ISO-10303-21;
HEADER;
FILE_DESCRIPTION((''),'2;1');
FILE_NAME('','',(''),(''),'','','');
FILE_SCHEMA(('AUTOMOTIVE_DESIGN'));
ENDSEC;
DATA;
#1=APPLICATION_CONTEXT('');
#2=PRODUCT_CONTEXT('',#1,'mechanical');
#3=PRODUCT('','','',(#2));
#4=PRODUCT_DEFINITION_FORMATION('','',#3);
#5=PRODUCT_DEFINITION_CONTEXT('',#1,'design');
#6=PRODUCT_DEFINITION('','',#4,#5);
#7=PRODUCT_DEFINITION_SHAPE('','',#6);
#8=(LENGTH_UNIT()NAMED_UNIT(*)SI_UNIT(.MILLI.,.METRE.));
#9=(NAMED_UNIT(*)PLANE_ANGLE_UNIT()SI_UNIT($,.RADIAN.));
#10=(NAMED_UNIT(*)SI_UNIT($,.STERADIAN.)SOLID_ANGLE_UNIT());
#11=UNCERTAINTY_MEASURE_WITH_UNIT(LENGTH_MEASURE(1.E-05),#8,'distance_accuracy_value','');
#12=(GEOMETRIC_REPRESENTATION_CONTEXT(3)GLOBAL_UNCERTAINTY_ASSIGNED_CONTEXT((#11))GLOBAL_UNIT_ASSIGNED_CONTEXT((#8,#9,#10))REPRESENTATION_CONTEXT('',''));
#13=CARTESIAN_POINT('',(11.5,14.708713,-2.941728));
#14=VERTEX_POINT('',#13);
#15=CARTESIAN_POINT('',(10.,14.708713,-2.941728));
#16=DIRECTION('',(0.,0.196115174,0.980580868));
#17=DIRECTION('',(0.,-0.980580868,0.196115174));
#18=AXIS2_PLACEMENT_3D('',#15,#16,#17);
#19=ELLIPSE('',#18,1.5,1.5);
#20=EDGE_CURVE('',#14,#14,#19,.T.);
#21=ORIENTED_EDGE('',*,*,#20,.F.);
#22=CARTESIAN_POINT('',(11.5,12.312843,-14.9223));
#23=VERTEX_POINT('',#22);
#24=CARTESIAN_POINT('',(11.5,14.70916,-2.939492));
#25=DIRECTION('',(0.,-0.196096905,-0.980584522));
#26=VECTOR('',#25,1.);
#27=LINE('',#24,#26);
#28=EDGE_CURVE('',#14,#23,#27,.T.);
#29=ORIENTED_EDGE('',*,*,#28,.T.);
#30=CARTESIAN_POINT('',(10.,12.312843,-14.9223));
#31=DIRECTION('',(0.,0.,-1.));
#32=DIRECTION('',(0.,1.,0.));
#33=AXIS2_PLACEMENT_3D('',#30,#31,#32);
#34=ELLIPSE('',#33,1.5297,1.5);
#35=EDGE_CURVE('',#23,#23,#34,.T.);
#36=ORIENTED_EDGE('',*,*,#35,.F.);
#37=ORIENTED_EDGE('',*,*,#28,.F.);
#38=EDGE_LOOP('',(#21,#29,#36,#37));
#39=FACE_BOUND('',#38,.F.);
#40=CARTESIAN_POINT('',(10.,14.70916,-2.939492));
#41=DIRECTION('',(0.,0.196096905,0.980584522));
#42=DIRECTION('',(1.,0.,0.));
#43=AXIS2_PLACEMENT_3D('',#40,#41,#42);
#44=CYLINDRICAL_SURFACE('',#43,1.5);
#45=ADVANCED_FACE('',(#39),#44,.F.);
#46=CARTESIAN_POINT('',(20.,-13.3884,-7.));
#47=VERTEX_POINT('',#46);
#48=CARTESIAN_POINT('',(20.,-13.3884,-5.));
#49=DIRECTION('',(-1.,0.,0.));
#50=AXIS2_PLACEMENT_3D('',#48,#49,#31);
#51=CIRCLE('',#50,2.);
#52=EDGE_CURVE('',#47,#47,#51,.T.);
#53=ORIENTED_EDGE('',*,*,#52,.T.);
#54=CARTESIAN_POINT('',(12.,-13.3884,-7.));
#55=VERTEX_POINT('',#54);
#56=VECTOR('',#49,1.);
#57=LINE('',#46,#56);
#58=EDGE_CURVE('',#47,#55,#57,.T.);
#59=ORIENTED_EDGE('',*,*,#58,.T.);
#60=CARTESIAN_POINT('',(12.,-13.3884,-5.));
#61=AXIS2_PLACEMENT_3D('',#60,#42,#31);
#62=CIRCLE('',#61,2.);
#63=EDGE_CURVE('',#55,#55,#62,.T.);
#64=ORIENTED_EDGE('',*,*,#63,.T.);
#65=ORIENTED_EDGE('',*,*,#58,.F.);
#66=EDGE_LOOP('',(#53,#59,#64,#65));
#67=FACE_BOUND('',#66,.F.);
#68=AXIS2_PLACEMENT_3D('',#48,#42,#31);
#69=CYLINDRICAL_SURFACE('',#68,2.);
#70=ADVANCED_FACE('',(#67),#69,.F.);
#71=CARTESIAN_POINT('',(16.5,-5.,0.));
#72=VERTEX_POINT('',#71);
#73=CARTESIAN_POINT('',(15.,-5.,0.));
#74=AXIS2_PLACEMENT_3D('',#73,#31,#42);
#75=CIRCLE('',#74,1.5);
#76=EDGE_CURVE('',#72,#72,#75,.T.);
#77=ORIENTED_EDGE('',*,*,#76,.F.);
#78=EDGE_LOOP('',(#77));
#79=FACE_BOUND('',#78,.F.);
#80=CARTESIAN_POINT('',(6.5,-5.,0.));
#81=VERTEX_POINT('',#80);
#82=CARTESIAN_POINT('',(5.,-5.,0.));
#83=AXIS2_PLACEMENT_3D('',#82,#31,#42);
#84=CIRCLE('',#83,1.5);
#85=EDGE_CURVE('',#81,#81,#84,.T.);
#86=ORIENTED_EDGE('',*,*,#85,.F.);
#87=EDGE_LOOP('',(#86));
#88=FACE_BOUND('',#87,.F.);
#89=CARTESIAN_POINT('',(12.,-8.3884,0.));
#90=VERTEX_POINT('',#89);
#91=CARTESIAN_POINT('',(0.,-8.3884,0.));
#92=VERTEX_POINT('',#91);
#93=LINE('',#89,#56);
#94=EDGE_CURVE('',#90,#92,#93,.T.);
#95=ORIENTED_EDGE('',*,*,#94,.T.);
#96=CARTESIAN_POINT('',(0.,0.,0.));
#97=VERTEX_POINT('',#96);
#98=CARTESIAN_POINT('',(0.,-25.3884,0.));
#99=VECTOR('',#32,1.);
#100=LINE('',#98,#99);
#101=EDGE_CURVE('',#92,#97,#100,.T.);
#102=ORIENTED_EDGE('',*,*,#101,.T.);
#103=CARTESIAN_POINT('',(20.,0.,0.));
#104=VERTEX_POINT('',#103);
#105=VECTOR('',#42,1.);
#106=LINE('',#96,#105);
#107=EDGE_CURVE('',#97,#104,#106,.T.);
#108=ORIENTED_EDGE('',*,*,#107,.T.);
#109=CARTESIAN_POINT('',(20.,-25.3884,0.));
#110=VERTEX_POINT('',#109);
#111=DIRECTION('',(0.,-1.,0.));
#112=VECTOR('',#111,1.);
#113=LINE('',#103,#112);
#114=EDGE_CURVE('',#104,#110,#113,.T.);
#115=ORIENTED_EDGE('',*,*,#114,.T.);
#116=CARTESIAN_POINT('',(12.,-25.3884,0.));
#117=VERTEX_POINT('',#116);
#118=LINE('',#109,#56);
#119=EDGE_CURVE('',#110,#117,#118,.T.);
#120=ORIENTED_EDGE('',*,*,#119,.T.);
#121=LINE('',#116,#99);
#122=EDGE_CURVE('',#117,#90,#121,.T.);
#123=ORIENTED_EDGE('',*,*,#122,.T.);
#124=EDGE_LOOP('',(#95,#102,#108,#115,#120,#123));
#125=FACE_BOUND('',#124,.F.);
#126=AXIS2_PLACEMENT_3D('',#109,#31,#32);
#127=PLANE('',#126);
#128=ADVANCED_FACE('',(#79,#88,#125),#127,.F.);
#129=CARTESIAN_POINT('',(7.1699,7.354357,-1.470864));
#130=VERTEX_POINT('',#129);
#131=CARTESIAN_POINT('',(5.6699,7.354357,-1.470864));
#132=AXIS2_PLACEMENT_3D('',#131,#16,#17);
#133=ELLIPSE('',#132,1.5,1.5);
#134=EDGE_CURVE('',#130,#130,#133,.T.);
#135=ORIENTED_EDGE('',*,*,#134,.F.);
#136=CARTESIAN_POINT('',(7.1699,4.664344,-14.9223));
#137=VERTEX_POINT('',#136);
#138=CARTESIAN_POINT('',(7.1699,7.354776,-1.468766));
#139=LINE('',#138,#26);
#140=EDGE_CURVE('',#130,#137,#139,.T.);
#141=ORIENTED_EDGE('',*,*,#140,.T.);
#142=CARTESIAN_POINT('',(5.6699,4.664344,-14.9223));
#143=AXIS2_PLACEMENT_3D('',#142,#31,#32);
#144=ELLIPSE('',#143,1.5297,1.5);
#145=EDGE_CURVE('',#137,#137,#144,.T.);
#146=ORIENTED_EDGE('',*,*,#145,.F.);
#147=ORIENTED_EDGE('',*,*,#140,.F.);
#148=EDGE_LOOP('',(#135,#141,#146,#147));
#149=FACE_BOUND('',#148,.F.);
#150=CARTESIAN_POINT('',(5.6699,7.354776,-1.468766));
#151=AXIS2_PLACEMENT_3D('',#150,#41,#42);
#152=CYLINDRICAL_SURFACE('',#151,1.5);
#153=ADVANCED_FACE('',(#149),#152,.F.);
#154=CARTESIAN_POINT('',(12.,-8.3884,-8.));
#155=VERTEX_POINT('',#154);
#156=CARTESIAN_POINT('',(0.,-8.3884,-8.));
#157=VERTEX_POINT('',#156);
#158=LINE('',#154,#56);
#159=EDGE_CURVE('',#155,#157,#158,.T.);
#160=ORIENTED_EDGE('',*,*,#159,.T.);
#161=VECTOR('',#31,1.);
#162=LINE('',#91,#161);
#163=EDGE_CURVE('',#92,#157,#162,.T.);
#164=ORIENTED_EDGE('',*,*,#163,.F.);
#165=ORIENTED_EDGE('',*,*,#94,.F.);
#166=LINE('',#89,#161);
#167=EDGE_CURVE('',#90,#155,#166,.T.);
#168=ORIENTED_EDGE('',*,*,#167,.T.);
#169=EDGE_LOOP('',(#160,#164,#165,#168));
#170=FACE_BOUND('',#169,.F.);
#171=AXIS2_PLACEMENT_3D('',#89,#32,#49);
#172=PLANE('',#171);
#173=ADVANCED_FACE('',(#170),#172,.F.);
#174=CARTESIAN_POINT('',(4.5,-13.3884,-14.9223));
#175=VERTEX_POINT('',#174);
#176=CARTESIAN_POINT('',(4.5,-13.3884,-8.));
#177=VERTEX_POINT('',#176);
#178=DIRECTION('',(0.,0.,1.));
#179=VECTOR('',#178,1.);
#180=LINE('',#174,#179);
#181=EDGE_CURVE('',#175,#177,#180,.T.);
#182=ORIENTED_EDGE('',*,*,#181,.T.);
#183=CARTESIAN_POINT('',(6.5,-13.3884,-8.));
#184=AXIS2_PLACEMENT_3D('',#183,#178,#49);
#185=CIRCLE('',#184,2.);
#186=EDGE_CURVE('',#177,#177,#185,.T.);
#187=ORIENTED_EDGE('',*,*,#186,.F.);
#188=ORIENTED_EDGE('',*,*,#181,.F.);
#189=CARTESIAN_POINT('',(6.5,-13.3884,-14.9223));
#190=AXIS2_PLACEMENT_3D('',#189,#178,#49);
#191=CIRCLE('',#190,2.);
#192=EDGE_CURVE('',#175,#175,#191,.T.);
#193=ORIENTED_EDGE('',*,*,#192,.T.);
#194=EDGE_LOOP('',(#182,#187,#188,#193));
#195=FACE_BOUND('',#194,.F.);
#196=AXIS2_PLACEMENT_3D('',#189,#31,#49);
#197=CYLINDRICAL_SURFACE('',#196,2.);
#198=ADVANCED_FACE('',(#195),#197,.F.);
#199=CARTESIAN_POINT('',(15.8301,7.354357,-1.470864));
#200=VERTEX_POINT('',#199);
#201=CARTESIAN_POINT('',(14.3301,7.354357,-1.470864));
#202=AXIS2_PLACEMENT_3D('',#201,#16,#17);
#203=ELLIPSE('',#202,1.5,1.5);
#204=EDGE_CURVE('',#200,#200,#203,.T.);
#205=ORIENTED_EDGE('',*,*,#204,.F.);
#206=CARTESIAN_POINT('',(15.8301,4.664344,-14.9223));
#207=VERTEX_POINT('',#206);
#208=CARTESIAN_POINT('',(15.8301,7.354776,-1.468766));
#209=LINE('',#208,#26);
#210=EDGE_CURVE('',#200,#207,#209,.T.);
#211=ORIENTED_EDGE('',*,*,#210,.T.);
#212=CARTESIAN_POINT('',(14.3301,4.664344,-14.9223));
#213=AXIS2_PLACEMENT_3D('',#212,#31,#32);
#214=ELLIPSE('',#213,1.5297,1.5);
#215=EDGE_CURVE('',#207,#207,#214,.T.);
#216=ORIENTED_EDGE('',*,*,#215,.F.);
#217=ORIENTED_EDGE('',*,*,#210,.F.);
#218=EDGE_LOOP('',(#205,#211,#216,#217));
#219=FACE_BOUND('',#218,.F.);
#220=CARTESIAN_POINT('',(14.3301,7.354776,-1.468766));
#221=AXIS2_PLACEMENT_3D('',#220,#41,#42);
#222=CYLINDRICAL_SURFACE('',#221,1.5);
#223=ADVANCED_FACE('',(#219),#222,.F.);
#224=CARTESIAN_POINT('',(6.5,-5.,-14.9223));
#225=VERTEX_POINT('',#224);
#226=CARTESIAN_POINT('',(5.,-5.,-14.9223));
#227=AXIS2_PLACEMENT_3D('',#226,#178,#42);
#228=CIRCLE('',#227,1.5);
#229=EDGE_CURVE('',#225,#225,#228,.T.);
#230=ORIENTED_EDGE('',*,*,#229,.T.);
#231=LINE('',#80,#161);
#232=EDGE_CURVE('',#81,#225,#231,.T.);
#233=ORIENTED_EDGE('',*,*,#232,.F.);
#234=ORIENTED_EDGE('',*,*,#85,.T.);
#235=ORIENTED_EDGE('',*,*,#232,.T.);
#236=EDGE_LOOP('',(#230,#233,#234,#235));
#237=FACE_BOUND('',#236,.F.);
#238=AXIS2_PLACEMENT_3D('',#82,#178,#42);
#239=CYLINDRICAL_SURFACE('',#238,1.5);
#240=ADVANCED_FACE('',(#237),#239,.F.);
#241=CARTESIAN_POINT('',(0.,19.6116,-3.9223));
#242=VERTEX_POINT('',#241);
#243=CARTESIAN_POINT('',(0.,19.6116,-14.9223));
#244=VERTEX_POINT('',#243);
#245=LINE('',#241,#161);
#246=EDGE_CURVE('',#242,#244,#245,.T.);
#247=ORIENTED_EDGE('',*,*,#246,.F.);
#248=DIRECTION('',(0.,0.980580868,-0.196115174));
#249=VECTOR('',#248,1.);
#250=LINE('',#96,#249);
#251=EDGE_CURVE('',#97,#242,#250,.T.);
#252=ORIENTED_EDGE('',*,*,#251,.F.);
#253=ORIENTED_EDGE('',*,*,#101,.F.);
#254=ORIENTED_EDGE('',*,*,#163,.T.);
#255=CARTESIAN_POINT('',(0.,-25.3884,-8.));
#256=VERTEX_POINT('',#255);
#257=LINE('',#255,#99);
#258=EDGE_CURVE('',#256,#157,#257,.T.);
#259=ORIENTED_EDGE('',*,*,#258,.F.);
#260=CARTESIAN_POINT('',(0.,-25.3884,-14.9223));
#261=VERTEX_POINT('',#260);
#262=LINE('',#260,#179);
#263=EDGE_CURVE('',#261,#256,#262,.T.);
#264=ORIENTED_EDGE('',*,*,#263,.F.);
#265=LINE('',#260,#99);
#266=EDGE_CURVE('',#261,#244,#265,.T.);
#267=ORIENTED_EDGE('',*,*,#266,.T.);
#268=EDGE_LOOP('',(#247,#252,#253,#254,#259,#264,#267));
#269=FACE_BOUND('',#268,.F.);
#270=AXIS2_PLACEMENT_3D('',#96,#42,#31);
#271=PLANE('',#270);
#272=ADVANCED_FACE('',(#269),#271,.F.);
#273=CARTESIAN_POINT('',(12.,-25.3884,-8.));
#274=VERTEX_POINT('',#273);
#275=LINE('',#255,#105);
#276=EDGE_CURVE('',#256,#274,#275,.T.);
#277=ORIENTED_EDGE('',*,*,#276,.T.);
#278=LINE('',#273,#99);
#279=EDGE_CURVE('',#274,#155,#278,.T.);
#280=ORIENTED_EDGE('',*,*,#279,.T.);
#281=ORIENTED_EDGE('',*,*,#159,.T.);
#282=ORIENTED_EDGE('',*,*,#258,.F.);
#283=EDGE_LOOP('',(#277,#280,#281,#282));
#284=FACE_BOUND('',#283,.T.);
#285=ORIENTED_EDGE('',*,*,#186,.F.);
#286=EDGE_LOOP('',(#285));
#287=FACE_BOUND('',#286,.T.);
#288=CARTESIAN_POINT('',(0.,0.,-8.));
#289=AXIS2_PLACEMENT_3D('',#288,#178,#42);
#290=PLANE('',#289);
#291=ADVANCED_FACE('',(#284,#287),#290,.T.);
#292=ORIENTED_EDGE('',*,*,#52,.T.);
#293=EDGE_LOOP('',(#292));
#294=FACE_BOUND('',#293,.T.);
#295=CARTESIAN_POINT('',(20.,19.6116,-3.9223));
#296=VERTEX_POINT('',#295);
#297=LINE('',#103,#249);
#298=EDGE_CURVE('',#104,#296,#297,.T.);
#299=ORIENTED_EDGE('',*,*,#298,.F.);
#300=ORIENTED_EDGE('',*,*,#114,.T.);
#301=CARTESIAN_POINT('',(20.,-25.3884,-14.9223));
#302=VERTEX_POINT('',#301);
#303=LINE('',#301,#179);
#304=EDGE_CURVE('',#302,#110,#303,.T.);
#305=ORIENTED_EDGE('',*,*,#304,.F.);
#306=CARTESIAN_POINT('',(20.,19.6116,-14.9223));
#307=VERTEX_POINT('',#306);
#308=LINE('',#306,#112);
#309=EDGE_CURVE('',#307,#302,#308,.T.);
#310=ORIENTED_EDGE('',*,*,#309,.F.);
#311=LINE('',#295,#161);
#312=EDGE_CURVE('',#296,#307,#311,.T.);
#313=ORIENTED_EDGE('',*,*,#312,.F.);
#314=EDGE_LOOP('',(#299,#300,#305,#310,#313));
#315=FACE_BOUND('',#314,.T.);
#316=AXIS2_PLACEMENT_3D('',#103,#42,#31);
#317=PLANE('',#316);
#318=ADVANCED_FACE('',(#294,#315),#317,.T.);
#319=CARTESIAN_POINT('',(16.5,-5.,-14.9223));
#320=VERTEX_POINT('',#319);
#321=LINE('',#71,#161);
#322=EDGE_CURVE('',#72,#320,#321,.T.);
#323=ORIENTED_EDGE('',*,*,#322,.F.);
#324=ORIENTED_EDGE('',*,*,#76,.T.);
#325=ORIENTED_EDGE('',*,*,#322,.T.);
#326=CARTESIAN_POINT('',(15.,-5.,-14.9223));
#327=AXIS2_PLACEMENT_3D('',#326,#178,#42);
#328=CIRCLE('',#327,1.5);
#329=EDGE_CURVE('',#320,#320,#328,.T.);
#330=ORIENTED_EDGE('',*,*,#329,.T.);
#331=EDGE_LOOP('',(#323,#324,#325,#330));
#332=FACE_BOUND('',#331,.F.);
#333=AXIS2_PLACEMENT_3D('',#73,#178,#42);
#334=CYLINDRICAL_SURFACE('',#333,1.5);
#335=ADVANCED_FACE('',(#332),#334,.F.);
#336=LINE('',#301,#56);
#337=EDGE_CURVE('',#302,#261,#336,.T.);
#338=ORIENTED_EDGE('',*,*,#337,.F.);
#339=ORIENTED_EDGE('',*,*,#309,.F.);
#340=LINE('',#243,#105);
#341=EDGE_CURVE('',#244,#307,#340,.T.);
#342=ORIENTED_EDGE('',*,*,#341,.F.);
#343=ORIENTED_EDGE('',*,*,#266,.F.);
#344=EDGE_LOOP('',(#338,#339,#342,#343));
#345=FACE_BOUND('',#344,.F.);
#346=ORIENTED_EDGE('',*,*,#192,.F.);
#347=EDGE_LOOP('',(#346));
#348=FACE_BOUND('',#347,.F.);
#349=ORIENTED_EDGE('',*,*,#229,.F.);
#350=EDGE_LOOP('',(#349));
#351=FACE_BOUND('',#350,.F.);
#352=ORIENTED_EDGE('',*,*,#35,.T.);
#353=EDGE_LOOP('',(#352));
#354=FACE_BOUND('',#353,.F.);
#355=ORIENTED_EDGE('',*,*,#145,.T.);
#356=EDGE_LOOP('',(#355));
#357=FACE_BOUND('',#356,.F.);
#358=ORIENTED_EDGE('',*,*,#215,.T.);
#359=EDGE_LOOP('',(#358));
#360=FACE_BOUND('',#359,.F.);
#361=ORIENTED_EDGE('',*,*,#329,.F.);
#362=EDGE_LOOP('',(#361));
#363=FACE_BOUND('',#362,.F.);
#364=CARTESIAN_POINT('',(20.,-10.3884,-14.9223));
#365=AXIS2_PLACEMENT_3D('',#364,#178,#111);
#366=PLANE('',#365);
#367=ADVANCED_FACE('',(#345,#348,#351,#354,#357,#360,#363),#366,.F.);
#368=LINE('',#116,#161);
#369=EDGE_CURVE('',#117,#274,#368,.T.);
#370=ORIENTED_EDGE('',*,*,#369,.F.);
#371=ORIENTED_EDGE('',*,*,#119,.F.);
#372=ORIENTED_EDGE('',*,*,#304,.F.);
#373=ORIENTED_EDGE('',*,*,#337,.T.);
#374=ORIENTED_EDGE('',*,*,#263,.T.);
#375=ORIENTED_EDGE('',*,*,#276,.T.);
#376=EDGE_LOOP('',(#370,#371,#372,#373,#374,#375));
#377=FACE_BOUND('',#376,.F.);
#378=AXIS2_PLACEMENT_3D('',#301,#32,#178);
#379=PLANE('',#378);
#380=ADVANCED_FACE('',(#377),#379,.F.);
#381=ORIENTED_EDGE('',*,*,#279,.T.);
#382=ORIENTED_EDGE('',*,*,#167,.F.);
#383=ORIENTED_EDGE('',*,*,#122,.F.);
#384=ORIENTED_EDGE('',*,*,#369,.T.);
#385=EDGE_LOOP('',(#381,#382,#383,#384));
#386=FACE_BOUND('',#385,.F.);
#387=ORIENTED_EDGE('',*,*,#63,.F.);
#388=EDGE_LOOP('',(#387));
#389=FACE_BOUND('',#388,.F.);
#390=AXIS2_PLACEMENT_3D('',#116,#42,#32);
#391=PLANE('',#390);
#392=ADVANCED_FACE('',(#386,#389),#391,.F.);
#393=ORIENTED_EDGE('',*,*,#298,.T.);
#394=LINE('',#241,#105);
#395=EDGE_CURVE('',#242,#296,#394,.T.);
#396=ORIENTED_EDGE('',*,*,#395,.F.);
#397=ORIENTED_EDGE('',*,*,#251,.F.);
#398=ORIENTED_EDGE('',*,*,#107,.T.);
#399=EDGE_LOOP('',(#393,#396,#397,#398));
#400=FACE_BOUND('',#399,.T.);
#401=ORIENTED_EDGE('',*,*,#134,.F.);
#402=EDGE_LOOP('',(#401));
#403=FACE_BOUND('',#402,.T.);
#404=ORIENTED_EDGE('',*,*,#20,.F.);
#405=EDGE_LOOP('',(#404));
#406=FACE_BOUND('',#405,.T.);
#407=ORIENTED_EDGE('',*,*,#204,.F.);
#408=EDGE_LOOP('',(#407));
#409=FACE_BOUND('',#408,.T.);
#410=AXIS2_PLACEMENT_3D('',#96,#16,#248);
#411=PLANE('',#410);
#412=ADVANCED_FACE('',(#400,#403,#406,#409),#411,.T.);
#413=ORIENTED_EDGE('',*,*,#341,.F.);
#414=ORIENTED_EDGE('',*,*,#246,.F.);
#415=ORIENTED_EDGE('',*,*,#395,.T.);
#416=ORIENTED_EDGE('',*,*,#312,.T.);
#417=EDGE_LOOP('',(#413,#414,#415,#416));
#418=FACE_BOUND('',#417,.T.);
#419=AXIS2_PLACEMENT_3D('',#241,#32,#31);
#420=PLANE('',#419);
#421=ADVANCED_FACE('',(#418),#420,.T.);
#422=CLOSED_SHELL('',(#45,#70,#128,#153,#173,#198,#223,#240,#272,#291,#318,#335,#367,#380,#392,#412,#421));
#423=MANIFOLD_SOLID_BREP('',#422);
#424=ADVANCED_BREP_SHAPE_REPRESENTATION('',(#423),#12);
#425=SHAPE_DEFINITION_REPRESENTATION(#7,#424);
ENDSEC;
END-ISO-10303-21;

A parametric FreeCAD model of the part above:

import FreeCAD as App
import Part
import Sketcher
from FreeCAD import Vector
Q = App.Units.Quantity


def add_polygon(sketch, points):
    """Adds a closed chain of lines whose ends are joined by coincident constraints."""
    first, n = sketch.GeometryCount, len(points)
    for a, b in zip(points, points[1:] + points[:1]):
        sketch.addGeometry(Part.LineSegment(App.Vector(*a, 0), App.Vector(*b, 0)), False)
    for i in range(n):
        sketch.addConstraint(Sketcher.Constraint("Coincident", first + i, 2, first + (i + 1) % n, 1))

doc = App.newDocument("Part")
body = doc.addObject("PartDesign::Body", "Body")

# Sketch on YZ plane
sketch1 = body.newObject("Sketcher::SketchObject", "Sketch")
sketch1.AttachmentSupport = (doc.getObject("YZ_Plane"), [""])
sketch1.MapMode = "FlatFace"
add_polygon(sketch1, [(19.6116, -3.9223), (0, 0), (-10.3884, 0), (-10.3884, -14.9223), (19.6116, -14.9223)])  # lines 0-4
sketch1.addConstraint([
    Sketcher.Constraint("Horizontal", 1),
    Sketcher.Constraint("Vertical", 2),
    Sketcher.Constraint("Horizontal", 3),
    Sketcher.Constraint("Vertical", 4),
    Sketcher.Constraint("Coincident", 0, 2, -1, 1),
    Sketcher.Constraint("DistanceX", 3, 1, 3, 2, 30.0),
    Sketcher.Constraint("DistanceY", 4, 1, 4, 2, 11.0),
    Sketcher.Constraint("Distance", 0, 20.0),
    Sketcher.Constraint("Angle", 0, Q("168.6901 deg")),
])
pad1 = body.newObject("PartDesign::Pad", "Pad")
pad1.Profile = sketch1
pad1.Length = 20

# Sketch on an angled plane
sketch2 = body.newObject("Sketcher::SketchObject", "Sketch001")
sketch2.Placement = App.Placement(Vector(0, 0, 0), App.Rotation(Vector(1, 0, 0), Vector(0, 0.980584522, -0.196096905), Vector(0, 0.196096905, 0.980584522), "ZXY"))
sketch2.addGeometry([
    Part.Circle(Vector(10, 15, 0), Vector(0, 0, 1), 1.5),
    Part.Circle(Vector(5.6699, 7.5, 0), Vector(0, 0, 1), 1.5),
    Part.Circle(Vector(14.3301, 7.5, 0), Vector(0, 0, 1), 1.5),
], False)
sketch2.addConstraint([
    Sketcher.Constraint("Equal", 0, 1),
    Sketcher.Constraint("Equal", 1, 2),
    Sketcher.Constraint("Horizontal", 1, 3, 2, 3),
    Sketcher.Constraint("Diameter", 0, 3.0),
    Sketcher.Constraint("DistanceY", -1, 1, 0, 3, 15.0),
    Sketcher.Constraint("DistanceX", -1, 1, 0, 3, 10.0),
    Sketcher.Constraint("DistanceY", -1, 1, 1, 3, 7.5),
    Sketcher.Constraint("DistanceX", -1, 1, 1, 3, 5.67),
    Sketcher.Constraint("DistanceX", -1, 1, 2, 3, 14.33),
])
pocket1 = body.newObject("PartDesign::Pocket", "Pocket")
pocket1.Profile = sketch2
pocket1.Length = 20

# Sketch on XY plane
sketch3 = body.newObject("Sketcher::SketchObject", "Sketch002")
sketch3.AttachmentSupport = (doc.getObject("XY_Plane"), [""])
sketch3.MapMode = "FlatFace"
sketch3.addGeometry([
    Part.Circle(Vector(5, -5, 0), Vector(0, 0, 1), 1.5),
    Part.Circle(Vector(15, -5, 0), Vector(0, 0, 1), 1.5),
], False)
sketch3.addConstraint([
    Sketcher.Constraint("Equal", 0, 1),
    Sketcher.Constraint("Horizontal", 0, 3, 1, 3),
    Sketcher.Constraint("Diameter", 0, 3.0),
    Sketcher.Constraint("DistanceX", -1, 1, 0, 3, 5.0),
    Sketcher.Constraint("DistanceY", 0, 3, -1, 1, 5.0),
    Sketcher.Constraint("DistanceX", 0, 3, 1, 3, 10.0),
])
pocket2 = body.newObject("PartDesign::Pocket", "Pocket001")
pocket2.Profile = sketch3
pocket2.Length = 20

# Sketch on YZ plane
sketch4 = body.newObject("Sketcher::SketchObject", "Sketch003")
sketch4.AttachmentSupport = (doc.getObject("YZ_Plane"), [""])
sketch4.MapMode = "FlatFace"
sketch4.AttachmentOffset = App.Placement(Vector(0, 0, 20), App.Rotation())
add_polygon(sketch4, [(-10.3884, -14.9223), (-10.3884, 0), (-25.3884, 0), (-25.3884, -14.9223)])  # lines 0-3
sketch4.addConstraint([
    Sketcher.Constraint("Vertical", 0),
    Sketcher.Constraint("Horizontal", 1),
    Sketcher.Constraint("Vertical", 2),
    Sketcher.Constraint("Horizontal", 3),
    Sketcher.Constraint("PointOnObject", 0, 2, -1),
    Sketcher.Constraint("DistanceX", 1, 2, 1, 1, 15.0),
    Sketcher.Constraint("DistanceY", 0, 1, 0, 2, 14.9223),
    Sketcher.Constraint("DistanceX", 0, 2, -1, 1, 10.3884),
])
pad2 = body.newObject("PartDesign::Pad", "Pad001")
pad2.Profile = sketch4
pad2.Length = 20
pad2.Reversed = True

# Sketch on XY plane
sketch5 = body.newObject("Sketcher::SketchObject", "Sketch004")
sketch5.AttachmentSupport = (doc.getObject("XY_Plane"), [""])
sketch5.MapMode = "FlatFace"
add_polygon(sketch5, [(0, -8.3884), (0, -25.3884), (12, -25.3884), (12, -8.3884)])  # lines 0-3
sketch5.addConstraint([
    Sketcher.Constraint("Vertical", 0),
    Sketcher.Constraint("Horizontal", 1),
    Sketcher.Constraint("Vertical", 2),
    Sketcher.Constraint("Horizontal", 3),
    Sketcher.Constraint("PointOnObject", 0, 2, -2),
    Sketcher.Constraint("DistanceX", 1, 1, 1, 2, 12.0),
    Sketcher.Constraint("DistanceY", 0, 2, 0, 1, 17.0),
    Sketcher.Constraint("DistanceY", 0, 2, -1, 1, 25.3884),
])
pocket3 = body.newObject("PartDesign::Pocket", "Pocket002")
pocket3.Profile = sketch5
pocket3.Length = 8

# Sketch on YZ plane
sketch6 = body.newObject("Sketcher::SketchObject", "Sketch005")
sketch6.AttachmentSupport = (doc.getObject("YZ_Plane"), [""])
sketch6.MapMode = "FlatFace"
sketch6.AttachmentOffset = App.Placement(Vector(0, 0, 20), App.Rotation())
sketch6.addGeometry(Part.Circle(Vector(-13.3884, -5, 0), Vector(0, 0, 1), 2), False)
sketch6.addConstraint([
    Sketcher.Constraint("Diameter", 0, 4.0),
    Sketcher.Constraint("DistanceY", 0, 3, -1, 1, 5.0),
    Sketcher.Constraint("DistanceX", 0, 3, -1, 1, 13.3884),
])
pocket4 = body.newObject("PartDesign::Pocket", "Pocket003")
pocket4.Profile = sketch6
pocket4.Length = 8

# Sketch on XY plane
sketch7 = body.newObject("Sketcher::SketchObject", "Sketch006")
sketch7.AttachmentSupport = (doc.getObject("XY_Plane"), [""])
sketch7.MapMode = "FlatFace"
sketch7.AttachmentOffset = App.Placement(Vector(0, 0, -14.9223), App.Rotation())
sketch7.addGeometry(Part.Circle(Vector(6.5, -13.3884, 0), Vector(0, 0, 1), 2), False)
sketch7.addConstraint([
    Sketcher.Constraint("Diameter", 0, 4.0),
    Sketcher.Constraint("DistanceX", -1, 1, 0, 3, 6.5),
    Sketcher.Constraint("DistanceY", 0, 3, -1, 1, 13.3884),
])
pocket5 = body.newObject("PartDesign::Pocket", "Pocket004")
pocket5.Profile = sketch7
pocket5.Length = 8
pocket5.Reversed = True

doc.recompute()
